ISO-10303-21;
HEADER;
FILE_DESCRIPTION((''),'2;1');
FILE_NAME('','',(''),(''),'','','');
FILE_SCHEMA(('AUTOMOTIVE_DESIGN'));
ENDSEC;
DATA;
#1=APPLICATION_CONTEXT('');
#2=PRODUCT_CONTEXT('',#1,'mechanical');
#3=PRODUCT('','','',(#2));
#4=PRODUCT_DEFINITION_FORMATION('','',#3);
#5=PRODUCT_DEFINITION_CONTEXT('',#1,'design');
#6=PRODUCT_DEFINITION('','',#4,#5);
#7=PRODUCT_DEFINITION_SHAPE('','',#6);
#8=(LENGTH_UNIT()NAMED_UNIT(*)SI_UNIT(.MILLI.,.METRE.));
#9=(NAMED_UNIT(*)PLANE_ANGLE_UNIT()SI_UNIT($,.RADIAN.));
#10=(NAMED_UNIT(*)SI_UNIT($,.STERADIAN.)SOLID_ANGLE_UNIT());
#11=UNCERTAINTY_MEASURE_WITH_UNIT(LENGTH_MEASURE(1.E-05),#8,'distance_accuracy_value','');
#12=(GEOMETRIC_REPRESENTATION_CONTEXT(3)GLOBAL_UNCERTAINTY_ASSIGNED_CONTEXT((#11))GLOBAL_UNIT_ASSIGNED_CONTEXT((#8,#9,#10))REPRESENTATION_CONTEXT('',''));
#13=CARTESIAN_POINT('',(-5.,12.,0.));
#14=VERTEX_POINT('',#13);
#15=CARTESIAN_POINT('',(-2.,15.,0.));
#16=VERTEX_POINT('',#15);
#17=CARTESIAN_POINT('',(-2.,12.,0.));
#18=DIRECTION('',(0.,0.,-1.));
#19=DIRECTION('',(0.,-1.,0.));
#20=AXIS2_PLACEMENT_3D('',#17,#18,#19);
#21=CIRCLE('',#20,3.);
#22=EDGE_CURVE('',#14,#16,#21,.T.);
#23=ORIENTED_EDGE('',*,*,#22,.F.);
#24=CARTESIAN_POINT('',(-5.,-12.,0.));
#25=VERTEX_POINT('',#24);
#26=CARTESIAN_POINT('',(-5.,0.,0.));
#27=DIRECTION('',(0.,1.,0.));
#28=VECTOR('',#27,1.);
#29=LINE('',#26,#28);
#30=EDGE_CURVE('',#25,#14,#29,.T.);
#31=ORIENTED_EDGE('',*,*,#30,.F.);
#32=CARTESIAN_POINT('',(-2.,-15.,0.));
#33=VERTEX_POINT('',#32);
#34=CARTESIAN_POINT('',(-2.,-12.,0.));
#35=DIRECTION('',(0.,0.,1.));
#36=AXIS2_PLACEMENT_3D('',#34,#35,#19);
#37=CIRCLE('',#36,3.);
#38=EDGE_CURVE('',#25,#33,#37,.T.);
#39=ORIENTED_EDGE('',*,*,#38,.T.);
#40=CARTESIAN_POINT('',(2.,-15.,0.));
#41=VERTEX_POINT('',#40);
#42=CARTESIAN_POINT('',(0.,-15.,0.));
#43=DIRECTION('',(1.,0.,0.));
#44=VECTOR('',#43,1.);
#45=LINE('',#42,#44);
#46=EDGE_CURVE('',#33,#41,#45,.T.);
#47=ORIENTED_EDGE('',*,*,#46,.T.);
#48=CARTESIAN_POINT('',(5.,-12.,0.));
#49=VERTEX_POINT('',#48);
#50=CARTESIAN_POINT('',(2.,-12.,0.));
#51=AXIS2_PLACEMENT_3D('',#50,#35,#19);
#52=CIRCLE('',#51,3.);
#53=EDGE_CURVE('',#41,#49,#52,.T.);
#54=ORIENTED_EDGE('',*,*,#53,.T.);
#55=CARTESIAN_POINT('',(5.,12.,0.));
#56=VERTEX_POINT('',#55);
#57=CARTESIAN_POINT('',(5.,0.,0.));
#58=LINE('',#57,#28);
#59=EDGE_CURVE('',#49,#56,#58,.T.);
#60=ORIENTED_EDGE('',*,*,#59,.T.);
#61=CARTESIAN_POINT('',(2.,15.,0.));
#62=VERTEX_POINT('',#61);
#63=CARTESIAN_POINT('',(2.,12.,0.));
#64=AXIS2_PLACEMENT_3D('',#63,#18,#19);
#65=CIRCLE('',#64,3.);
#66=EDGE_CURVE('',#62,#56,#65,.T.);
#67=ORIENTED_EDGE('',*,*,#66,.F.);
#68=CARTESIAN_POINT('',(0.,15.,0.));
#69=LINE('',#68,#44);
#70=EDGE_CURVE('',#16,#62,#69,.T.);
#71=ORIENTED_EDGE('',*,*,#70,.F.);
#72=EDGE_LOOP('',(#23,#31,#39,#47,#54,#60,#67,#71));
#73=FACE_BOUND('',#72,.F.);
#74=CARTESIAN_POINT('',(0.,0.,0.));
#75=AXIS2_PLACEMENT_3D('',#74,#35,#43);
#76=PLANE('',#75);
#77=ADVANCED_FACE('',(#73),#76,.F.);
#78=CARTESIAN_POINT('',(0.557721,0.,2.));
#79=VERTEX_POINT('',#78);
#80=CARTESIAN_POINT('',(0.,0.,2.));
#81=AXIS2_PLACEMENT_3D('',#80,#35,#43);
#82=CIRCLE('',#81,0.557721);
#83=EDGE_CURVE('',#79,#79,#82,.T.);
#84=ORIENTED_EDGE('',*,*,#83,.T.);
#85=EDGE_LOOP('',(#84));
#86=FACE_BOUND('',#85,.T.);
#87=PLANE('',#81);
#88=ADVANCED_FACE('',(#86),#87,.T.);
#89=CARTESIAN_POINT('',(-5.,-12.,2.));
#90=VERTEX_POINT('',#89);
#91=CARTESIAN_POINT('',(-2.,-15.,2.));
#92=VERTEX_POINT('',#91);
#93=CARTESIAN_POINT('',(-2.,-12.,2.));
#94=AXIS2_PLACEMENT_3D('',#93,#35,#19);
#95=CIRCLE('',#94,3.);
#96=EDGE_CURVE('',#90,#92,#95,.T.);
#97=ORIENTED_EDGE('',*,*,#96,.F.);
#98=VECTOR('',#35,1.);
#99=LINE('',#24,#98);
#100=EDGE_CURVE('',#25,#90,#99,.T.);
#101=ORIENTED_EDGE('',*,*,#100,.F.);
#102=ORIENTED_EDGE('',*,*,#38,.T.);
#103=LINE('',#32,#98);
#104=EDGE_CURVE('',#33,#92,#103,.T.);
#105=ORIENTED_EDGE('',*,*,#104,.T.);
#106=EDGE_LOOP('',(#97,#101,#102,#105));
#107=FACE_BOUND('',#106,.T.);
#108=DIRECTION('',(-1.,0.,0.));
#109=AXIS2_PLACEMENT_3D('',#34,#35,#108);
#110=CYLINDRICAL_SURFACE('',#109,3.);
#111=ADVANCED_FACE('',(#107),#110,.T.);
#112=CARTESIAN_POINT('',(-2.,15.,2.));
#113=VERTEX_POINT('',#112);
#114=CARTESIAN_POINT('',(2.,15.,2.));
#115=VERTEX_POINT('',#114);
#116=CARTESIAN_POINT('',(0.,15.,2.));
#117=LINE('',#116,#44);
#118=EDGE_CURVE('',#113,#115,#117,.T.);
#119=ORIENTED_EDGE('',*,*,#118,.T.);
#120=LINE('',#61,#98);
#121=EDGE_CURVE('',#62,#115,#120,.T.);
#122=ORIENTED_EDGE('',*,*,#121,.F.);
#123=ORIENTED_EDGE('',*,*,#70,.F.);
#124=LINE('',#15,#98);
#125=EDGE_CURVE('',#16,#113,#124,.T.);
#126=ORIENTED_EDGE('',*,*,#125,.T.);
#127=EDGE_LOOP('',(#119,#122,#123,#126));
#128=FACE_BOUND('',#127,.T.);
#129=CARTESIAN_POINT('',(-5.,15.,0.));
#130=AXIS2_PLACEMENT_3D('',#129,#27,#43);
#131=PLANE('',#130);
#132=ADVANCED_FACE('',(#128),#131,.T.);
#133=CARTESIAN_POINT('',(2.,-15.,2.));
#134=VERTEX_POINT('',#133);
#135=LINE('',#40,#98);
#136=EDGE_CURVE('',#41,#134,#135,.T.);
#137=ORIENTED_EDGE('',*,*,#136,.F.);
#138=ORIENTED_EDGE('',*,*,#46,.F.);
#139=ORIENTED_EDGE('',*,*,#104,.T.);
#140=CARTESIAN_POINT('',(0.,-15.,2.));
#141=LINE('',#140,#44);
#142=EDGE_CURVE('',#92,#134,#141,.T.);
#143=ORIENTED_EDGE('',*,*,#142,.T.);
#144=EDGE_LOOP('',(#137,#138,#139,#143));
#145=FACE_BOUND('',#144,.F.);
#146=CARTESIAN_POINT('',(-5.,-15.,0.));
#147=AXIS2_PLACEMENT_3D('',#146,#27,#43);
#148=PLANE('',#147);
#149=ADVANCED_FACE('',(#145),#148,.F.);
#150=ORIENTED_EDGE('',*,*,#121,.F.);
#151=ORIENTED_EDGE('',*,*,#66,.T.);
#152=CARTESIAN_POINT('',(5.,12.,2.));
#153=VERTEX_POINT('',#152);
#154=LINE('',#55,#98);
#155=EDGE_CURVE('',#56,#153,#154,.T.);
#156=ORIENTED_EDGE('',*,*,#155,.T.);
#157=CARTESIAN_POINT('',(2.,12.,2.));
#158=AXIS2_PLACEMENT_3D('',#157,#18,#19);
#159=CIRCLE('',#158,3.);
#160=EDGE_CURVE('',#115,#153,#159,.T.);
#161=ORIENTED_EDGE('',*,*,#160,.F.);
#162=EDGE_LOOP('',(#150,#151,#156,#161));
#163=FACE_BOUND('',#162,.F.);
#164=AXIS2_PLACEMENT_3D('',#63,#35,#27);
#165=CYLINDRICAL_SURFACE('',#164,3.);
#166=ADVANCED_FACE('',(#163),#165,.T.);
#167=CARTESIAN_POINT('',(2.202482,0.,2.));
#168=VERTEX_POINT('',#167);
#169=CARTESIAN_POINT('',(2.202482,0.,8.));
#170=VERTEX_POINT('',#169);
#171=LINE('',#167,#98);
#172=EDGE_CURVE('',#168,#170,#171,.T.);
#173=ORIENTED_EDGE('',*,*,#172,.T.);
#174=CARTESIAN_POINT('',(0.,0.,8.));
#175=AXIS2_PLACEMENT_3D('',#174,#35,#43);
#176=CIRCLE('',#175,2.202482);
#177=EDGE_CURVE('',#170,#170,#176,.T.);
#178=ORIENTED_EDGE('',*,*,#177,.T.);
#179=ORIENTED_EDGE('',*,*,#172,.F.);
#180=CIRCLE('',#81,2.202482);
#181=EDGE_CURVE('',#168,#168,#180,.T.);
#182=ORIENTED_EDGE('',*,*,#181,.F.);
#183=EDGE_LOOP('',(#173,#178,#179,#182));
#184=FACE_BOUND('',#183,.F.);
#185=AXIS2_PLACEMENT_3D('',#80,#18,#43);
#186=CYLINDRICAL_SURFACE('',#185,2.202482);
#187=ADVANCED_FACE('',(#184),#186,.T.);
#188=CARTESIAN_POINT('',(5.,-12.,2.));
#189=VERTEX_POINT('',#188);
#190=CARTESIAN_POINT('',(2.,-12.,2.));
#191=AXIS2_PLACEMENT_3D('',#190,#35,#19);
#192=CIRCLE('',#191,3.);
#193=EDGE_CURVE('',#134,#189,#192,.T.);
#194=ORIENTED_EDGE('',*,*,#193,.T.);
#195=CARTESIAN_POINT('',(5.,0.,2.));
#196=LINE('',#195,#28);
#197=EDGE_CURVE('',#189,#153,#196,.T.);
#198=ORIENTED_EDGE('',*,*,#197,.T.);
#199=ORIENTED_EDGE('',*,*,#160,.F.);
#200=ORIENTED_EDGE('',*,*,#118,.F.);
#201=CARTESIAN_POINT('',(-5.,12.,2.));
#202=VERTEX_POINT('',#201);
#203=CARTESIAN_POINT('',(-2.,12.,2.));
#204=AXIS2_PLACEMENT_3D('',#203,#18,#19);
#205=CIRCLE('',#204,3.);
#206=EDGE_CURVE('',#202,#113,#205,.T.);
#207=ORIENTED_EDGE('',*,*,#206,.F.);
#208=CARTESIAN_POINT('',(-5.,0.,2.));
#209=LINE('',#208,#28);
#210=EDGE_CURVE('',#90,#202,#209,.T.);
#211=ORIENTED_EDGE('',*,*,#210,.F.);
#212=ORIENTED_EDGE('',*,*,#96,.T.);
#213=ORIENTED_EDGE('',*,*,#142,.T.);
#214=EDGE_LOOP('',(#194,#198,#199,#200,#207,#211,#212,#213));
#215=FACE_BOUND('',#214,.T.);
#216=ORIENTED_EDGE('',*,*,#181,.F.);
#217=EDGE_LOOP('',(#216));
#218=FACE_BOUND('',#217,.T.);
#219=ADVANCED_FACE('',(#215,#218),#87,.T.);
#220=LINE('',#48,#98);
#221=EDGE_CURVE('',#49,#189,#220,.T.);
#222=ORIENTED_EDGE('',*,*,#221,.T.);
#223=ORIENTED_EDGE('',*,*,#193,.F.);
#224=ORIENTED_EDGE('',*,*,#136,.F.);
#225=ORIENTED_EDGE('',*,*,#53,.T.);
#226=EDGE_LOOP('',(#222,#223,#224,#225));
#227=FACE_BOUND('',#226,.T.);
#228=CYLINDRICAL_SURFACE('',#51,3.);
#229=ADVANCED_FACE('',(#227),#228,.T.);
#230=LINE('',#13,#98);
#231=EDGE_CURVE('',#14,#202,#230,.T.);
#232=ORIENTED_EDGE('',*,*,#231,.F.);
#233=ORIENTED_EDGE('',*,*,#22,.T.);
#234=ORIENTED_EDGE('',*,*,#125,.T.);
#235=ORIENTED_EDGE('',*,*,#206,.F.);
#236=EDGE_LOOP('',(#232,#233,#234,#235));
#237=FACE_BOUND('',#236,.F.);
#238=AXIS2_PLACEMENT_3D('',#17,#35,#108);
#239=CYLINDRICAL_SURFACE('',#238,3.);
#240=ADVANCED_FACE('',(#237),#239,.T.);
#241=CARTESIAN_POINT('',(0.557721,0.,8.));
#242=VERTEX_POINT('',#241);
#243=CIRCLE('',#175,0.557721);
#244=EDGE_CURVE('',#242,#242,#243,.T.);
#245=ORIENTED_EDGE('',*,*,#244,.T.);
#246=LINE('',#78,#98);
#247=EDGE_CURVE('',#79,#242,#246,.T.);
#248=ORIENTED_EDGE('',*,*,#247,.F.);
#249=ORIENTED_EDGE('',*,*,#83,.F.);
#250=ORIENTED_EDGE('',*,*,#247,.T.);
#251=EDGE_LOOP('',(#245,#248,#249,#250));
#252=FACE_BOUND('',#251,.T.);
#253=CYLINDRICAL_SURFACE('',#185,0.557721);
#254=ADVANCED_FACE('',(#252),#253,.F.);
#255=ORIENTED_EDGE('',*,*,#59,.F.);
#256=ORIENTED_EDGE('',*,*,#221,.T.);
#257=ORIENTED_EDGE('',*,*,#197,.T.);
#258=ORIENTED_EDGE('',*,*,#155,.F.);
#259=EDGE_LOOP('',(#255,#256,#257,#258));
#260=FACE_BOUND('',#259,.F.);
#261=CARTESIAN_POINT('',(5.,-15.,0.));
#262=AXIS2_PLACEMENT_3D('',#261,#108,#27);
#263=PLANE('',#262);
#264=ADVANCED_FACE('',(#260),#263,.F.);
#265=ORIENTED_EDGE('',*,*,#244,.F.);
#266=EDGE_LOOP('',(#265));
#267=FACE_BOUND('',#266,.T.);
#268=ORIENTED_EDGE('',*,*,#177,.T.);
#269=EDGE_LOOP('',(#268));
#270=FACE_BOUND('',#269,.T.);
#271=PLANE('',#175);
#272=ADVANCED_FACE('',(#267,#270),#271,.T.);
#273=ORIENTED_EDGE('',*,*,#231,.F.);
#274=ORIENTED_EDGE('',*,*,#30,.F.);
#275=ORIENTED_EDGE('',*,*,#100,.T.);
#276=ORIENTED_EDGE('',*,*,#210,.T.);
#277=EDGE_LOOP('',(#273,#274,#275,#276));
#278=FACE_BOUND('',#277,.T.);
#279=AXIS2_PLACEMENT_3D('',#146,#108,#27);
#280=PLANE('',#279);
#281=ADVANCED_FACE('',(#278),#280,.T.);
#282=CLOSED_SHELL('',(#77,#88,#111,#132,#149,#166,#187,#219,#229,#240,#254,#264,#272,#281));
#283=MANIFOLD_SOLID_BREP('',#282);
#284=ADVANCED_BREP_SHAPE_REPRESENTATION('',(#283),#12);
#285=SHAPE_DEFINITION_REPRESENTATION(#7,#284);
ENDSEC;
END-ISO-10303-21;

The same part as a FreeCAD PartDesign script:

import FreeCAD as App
import Part
import Sketcher
Q = App.Units.Quantity


def edges_at(feature, points):
    """Names of the edges that pass closest to the given points."""
    edges = feature.Shape.Edges
    near = lambda p: min(range(len(edges)), key=lambda i: edges[i].distToShape(Part.Vertex(*p))[0])
    return sorted({f"Edge{near(p) + 1}" for p in points})

doc = App.newDocument("Part")
body = doc.addObject("PartDesign::Body", "Body")

# Sketch on XY plane
sketch1 = body.newObject("Sketcher::SketchObject", "Sketch")
sketch1.AttachmentSupport = (doc.getObject("XY_Plane"), [""])
sketch1.MapMode = "FlatFace"
sketch1.addGeometry(Part.LineSegment(App.Vector(-5, 15, 0), App.Vector(-5, -15, 0)), False)
sketch1.addGeometry(Part.LineSegment(App.Vector(-5, -15, 0), App.Vector(5, -15, 0)), False)
sketch1.addGeometry(Part.LineSegment(App.Vector(5, -15, 0), App.Vector(5, 15, 0)), False)
sketch1.addGeometry(Part.LineSegment(App.Vector(5, 15, 0), App.Vector(-5, 15, 0)), False)
sketch1.addConstraint(Sketcher.Constraint("Coincident", 0, 2, 1, 1))
sketch1.addConstraint(Sketcher.Constraint("Coincident", 1, 2, 2, 1))
sketch1.addConstraint(Sketcher.Constraint("Coincident", 2, 2, 3, 1))
sketch1.addConstraint(Sketcher.Constraint("Coincident", 3, 2, 0, 1))
sketch1.addConstraint(Sketcher.Constraint("Vertical", 0))
sketch1.addConstraint(Sketcher.Constraint("Horizontal", 1))
sketch1.addConstraint(Sketcher.Constraint("Vertical", 2))
sketch1.addConstraint(Sketcher.Constraint("Horizontal", 3))
sketch1.addConstraint(Sketcher.Constraint("Symmetric", 0, 2, 2, 2, -1, 1))
sketch1.addConstraint(Sketcher.Constraint("DistanceX", 1, 1, 1, 2, Q("10 mm")))
sketch1.addConstraint(Sketcher.Constraint("DistanceY", 0, 2, 0, 1, Q("30 mm")))
pad1 = body.newObject("PartDesign::Pad", "Pad")
pad1.Profile = sketch1
pad1.Length = 2

# Sketch on XY plane
sketch2 = body.newObject("Sketcher::SketchObject", "Sketch001")
sketch2.AttachmentSupport = (doc.getObject("XY_Plane"), [""])
sketch2.MapMode = "FlatFace"
sketch2.AttachmentOffset = App.Placement(App.Vector(0, 0, 2), App.Rotation())
sketch2.addGeometry(Part.Circle(App.Vector(0, 0, 0), App.Vector(0, 0, 1), 2.2), False)
sketch2.addGeometry(Part.Circle(App.Vector(0, 0, 0), App.Vector(0, 0, 1), 0.6), False)
sketch2.addConstraint(Sketcher.Constraint("Coincident", 0, 3, -1, 1))
sketch2.addConstraint(Sketcher.Constraint("Coincident", 1, 3, -1, 1))
sketch2.addConstraint(Sketcher.Constraint("Diameter", 0, Q("4.404964 mm")))
sketch2.addConstraint(Sketcher.Constraint("Diameter", 1, Q("1.115442 mm")))
pad2 = body.newObject("PartDesign::Pad", "Pad001")
pad2.Profile = sketch2
pad2.Length = 6
doc.recompute()

fillet = body.newObject("PartDesign::Fillet", "Fillet")
fillet.Base = (pad2, edges_at(pad2, [
    (5, 15, 1),
    (5, -15, 1),
    (-5, -15, 1),
    (-5, 15, 1),
]))
fillet.Radius = 3

doc.recompute()
